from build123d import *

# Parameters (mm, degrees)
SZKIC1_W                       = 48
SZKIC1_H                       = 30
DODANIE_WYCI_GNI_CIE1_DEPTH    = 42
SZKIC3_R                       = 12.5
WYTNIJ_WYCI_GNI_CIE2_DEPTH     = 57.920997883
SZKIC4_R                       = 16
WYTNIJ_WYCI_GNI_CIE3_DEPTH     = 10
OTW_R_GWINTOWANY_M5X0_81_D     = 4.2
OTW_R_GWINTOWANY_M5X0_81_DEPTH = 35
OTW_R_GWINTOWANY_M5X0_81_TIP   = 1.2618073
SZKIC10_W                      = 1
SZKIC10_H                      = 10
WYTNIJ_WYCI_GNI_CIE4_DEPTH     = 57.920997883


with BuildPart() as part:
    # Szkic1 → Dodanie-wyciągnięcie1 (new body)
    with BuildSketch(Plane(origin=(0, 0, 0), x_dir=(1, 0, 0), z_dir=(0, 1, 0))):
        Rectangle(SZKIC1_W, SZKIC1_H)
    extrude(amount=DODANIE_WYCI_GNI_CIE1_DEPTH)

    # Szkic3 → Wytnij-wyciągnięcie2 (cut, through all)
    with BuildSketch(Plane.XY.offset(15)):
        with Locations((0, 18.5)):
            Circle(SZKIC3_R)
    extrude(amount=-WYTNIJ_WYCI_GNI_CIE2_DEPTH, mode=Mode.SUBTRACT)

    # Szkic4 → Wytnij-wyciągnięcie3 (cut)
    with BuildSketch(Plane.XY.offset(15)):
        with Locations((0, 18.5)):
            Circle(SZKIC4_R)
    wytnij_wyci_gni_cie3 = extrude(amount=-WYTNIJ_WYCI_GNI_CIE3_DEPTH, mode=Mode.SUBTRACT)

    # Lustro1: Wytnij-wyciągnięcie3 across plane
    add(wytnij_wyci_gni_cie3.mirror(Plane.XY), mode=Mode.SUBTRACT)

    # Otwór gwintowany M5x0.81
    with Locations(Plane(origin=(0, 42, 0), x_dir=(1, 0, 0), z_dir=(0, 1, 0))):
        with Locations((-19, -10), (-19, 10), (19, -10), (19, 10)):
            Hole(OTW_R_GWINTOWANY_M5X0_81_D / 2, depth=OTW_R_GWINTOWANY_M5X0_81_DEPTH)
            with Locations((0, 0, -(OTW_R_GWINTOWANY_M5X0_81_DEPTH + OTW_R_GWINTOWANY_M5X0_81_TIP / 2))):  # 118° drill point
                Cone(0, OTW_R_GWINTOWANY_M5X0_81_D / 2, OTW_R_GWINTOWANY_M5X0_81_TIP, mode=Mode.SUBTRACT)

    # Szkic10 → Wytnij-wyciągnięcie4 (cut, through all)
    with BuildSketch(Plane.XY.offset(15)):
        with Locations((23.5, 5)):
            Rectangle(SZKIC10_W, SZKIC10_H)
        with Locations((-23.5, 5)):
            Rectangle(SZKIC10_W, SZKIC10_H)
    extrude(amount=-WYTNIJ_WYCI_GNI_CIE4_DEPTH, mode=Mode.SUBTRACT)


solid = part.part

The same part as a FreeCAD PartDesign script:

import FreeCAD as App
import Part
import Sketcher


def add_polygon(sketch, points):
    """Adds a closed chain of lines whose ends are joined by coincident constraints."""
    first, n = sketch.GeometryCount, len(points)
    for a, b in zip(points, points[1:] + points[:1]):
        sketch.addGeometry(Part.LineSegment(App.Vector(*a, 0), App.Vector(*b, 0)), False)
    for i in range(n):
        sketch.addConstraint(Sketcher.Constraint("Coincident", first + i, 2, first + (i + 1) % n, 1))

doc = App.newDocument("Part")
body = doc.addObject("PartDesign::Body", "Body")

# Sketch on XZ plane
sketch1 = body.newObject("Sketcher::SketchObject", "Sketch")
sketch1.AttachmentSupport = (doc.getObject("XZ_Plane"), [""])
sketch1.MapMode = "FlatFace"
add_polygon(sketch1, [(-24, -15), (-24, 15), (24, 15), (24, -15)])  # lines 0-3
sketch1.addConstraint([
    Sketcher.Constraint("Vertical", 0),
    Sketcher.Constraint("Horizontal", 1),
    Sketcher.Constraint("Vertical", 2),
    Sketcher.Constraint("Horizontal", 3),
    Sketcher.Constraint("Symmetric", 0, 2, 2, 2, -1, 1),
    Sketcher.Constraint("DistanceX", 1, 1, 1, 2, 48.0),
    Sketcher.Constraint("DistanceY", 0, 1, 0, 2, 30.0),
])
pad1 = body.newObject("PartDesign::Pad", "Pad")
pad1.Profile = sketch1
pad1.Length = 42
pad1.Reversed = True

# Sketch on XY plane
sketch2 = body.newObject("Sketcher::SketchObject", "Sketch001")
sketch2.AttachmentSupport = (doc.getObject("XY_Plane"), [""])
sketch2.MapMode = "FlatFace"
sketch2.AttachmentOffset = App.Placement(App.Vector(0, 0, 15), App.Rotation())
sketch2.addGeometry(Part.Circle(App.Vector(0, 18, 0), App.Vector(0, 0, 1), 12), False)
sketch2.addConstraint([
    Sketcher.Constraint("PointOnObject", 0, 3, -2),
    Sketcher.Constraint("Diameter", 0, 25.0),
    Sketcher.Constraint("DistanceY", -1, 1, 0, 3, 18.5),
])
pocket1 = body.newObject("PartDesign::Pocket", "Pocket")
pocket1.Profile = sketch2
pocket1.Type = "ThroughAll"

# Sketch on XY plane
sketch3 = body.newObject("Sketcher::SketchObject", "Sketch002")
sketch3.AttachmentSupport = (doc.getObject("XY_Plane"), [""])
sketch3.MapMode = "FlatFace"
sketch3.AttachmentOffset = App.Placement(App.Vector(0, 0, 15), App.Rotation())
sketch3.addGeometry(Part.Circle(App.Vector(0, 18, 0), App.Vector(0, 0, 1), 16), False)
sketch3.addConstraint([
    Sketcher.Constraint("PointOnObject", 0, 3, -2),
    Sketcher.Constraint("Diameter", 0, 32.0),
    Sketcher.Constraint("DistanceY", -1, 1, 0, 3, 18.5),
])
pocket2 = body.newObject("PartDesign::Pocket", "Pocket001")
pocket2.Profile = sketch3
pocket2.Length = 10
doc.recompute()

mirrored = body.newObject("PartDesign::Mirrored", "Mirrored")
mirrored.Originals = [pocket2]
mirrored.MirrorPlane = (doc.getObject("XY_Plane"), [""])
body.Tip = mirrored

# Sketch on XZ plane
sketch4 = body.newObject("Sketcher::SketchObject", "Sketch003")
sketch4.AttachmentSupport = (doc.getObject("XZ_Plane"), [""])
sketch4.MapMode = "FlatFace"
sketch4.AttachmentOffset = App.Placement(App.Vector(0, 0, -42), App.Rotation())
sketch4.addGeometry([
    Part.Circle(App.Vector(-19, 10, 0), App.Vector(0, 0, 1), 2.1),
    Part.Circle(App.Vector(-19, -10, 0), App.Vector(0, 0, 1), 2.1),
    Part.Circle(App.Vector(19, 10, 0), App.Vector(0, 0, 1), 2.1),
    Part.Circle(App.Vector(19, -10, 0), App.Vector(0, 0, 1), 2.1),
], False)
sketch4.addConstraint([
    Sketcher.Constraint("Equal", 0, 1),
    Sketcher.Constraint("Equal", 1, 2),
    Sketcher.Constraint("Equal", 2, 3),
    Sketcher.Constraint("Symmetric", 1, 3, 2, 3, -1, 1),
    Sketcher.Constraint("Symmetric", 0, 3, 3, 3, -1, 1),
    Sketcher.Constraint("Symmetric", 0, 3, 2, 3, -2),
    Sketcher.Constraint("Diameter", 0, 4.2),
    Sketcher.Constraint("DistanceX", 0, 3, -1, 1, 19.0),
    Sketcher.Constraint("DistanceY", -1, 1, 0, 3, 10.0),
])
doc.recompute()
hole = body.newObject("PartDesign::Hole", "Hole")
hole.Profile = sketch4
hole.ThreadType = "None"
hole.Diameter = 4.2
hole.DepthType = "Dimension"
hole.Depth = 35
hole.DrillPoint = "Angled"
hole.DrillPointAngle = 118
hole.Reversed = True

# Sketch on XY plane
sketch5 = body.newObject("Sketcher::SketchObject", "Sketch004")
sketch5.AttachmentSupport = (doc.getObject("XY_Plane"), [""])
sketch5.MapMode = "FlatFace"
sketch5.AttachmentOffset = App.Placement(App.Vector(0, 0, 15), App.Rotation())
add_polygon(sketch5, [(23, 10), (23, 0), (24, 0), (24, 10)])  # lines 0-3
add_polygon(sketch5, [(-24, 10), (-24, 0), (-23, 0), (-23, 10)])  # lines 4-7
sketch5.addConstraint([
    Sketcher.Constraint("Vertical", 0),
    Sketcher.Constraint("Horizontal", 1),
    Sketcher.Constraint("Vertical", 2),
    Sketcher.Constraint("Horizontal", 3),
    Sketcher.Constraint("Vertical", 4),
    Sketcher.Constraint("Horizontal", 5),
    Sketcher.Constraint("Vertical", 6),
    Sketcher.Constraint("Horizontal", 7),
    Sketcher.Constraint("Symmetric", 1, 2, 4, 2, -1, 1),
    Sketcher.Constraint("Symmetric", 0, 2, 5, 2, -2),
    Sketcher.Constraint("Horizontal", 3, 2, 6, 2),
    Sketcher.Constraint("DistanceX", 1, 1, 1, 2, 1.0),
    Sketcher.Constraint("DistanceY", 0, 2, 0, 1, 10.0),
    Sketcher.Constraint("DistanceX", -1, 1, 0, 2, 23.0),
])
pocket3 = body.newObject("PartDesign::Pocket", "Pocket002")
pocket3.Profile = sketch5
pocket3.Type = "ThroughAll"

doc.recompute()
